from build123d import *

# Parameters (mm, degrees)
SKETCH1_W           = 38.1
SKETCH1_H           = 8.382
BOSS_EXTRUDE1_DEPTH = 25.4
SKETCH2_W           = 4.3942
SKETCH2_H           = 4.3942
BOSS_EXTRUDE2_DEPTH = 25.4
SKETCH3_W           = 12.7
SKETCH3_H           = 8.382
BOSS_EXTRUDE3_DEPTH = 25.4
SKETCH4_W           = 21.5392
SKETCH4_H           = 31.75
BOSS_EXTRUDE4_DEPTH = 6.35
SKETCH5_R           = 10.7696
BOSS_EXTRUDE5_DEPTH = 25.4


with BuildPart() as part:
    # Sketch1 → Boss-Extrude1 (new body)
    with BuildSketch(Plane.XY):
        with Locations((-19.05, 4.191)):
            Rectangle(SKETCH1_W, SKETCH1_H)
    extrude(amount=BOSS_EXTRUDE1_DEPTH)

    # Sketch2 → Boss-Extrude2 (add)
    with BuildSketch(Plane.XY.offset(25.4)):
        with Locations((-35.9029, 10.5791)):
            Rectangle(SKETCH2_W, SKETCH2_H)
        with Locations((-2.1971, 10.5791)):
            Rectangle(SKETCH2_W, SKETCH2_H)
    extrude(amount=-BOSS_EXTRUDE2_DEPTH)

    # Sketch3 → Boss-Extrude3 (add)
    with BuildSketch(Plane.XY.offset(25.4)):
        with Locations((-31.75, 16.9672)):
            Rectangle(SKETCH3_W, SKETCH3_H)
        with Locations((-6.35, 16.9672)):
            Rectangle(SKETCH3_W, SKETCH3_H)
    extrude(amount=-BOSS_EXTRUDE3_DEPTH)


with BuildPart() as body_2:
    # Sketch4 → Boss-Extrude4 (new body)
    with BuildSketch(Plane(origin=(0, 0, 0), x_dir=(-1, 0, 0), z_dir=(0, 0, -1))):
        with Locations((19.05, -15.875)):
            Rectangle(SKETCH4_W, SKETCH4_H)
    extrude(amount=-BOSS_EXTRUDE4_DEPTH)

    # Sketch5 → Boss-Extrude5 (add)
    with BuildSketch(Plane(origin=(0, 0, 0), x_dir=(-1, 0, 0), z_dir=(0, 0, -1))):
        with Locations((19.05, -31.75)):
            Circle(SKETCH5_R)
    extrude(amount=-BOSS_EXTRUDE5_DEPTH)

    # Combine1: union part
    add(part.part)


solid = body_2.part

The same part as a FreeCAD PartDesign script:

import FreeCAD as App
import Part
import Sketcher
Q = App.Units.Quantity

doc = App.newDocument("Part")
body = doc.addObject("PartDesign::Body", "Body")

# Sketch on XY plane
sketch1 = doc.addObject("Sketcher::SketchObject", "Sketch")
body.addObject(sketch1)
sketch1.AttachmentSupport = (doc.XY_Plane, [""])
sketch1.MapMode = "FlatFace"
sketch1.addGeometry([
    Part.LineSegment(App.Vector(-38, 8, 0), App.Vector(-38, 0, 0)),
    Part.LineSegment(App.Vector(-38, 0, 0), App.Vector(0, 0, 0)),
    Part.LineSegment(App.Vector(0, 0, 0), App.Vector(0, 8, 0)),
    Part.LineSegment(App.Vector(0, 8, 0), App.Vector(-38, 8, 0)),
], False)
sketch1.addConstraint([
    Sketcher.Constraint("Coincident", 0, 2, 1, 1),
    Sketcher.Constraint("Coincident", 1, 2, 2, 1),
    Sketcher.Constraint("Coincident", 2, 2, 3, 1),
    Sketcher.Constraint("Coincident", 3, 2, 0, 1),
    Sketcher.Constraint("Vertical", 0),
    Sketcher.Constraint("Horizontal", 1),
    Sketcher.Constraint("Vertical", 2),
    Sketcher.Constraint("Horizontal", 3),
    Sketcher.Constraint("Coincident", 1, 2, -1, 1),
    Sketcher.Constraint("DistanceX", 1, 1, 1, 2, Q("1.5 in")),
    Sketcher.Constraint("DistanceY", 0, 2, 0, 1, Q("0.33 in")),
])
pad1 = doc.addObject("PartDesign::Pad", "Pad")
body.addObject(pad1)
pad1.Profile = sketch1
pad1.Length = Q("1 in")

# Sketch on XY plane
sketch2 = doc.addObject("Sketcher::SketchObject", "Sketch001")
body.addObject(sketch2)
sketch2.AttachmentSupport = (doc.XY_Plane, [""])
sketch2.MapMode = "FlatFace"
sketch2.AttachmentOffset = App.Placement(App.Vector(0, 0, 1 * 25.4), App.Rotation())
sketch2.addGeometry([
    Part.LineSegment(App.Vector(-38.1, 12.8, 0), App.Vector(-38.1, 8.4, 0)),  # 0
    Part.LineSegment(App.Vector(-38.1, 8.4, 0), App.Vector(-33.7, 8.4, 0)),  # 1
    Part.LineSegment(App.Vector(-33.7, 8.4, 0), App.Vector(-33.7, 12.8, 0)),  # 2
    Part.LineSegment(App.Vector(-33.7, 12.8, 0), App.Vector(-38.1, 12.8, 0)),  # 3
    Part.LineSegment(App.Vector(-4.4, 12.8, 0), App.Vector(-4.4, 8.4, 0)),  # 4
    Part.LineSegment(App.Vector(-4.4, 8.4, 0), App.Vector(0, 8.4, 0)),  # 5
    Part.LineSegment(App.Vector(0, 8.4, 0), App.Vector(0, 12.8, 0)),  # 6
    Part.LineSegment(App.Vector(0, 12.8, 0), App.Vector(-4.4, 12.8, 0)),  # 7
], False)
sketch2.addConstraint([
    Sketcher.Constraint("Coincident", 0, 2, 1, 1),
    Sketcher.Constraint("Coincident", 1, 2, 2, 1),
    Sketcher.Constraint("Coincident", 2, 2, 3, 1),
    Sketcher.Constraint("Coincident", 3, 2, 0, 1),
    Sketcher.Constraint("Coincident", 4, 2, 5, 1),
    Sketcher.Constraint("Coincident", 5, 2, 6, 1),
    Sketcher.Constraint("Coincident", 6, 2, 7, 1),
    Sketcher.Constraint("Coincident", 7, 2, 4, 1),
    Sketcher.Constraint("Vertical", 0),
    Sketcher.Constraint("Horizontal", 1),
    Sketcher.Constraint("Vertical", 2),
    Sketcher.Constraint("Horizontal", 3),
    Sketcher.Constraint("Vertical", 4),
    Sketcher.Constraint("Horizontal", 5),
    Sketcher.Constraint("Vertical", 6),
    Sketcher.Constraint("Horizontal", 7),
    Sketcher.Constraint("PointOnObject", 5, 2, -2),
    Sketcher.Constraint("Horizontal", 1, 2, 4, 2),
    Sketcher.Constraint("Horizontal", 3, 2, 6, 2),
    Sketcher.Constraint("Equal", 3, 5),
    Sketcher.Constraint("Equal", 7, 0),
    Sketcher.Constraint("DistanceX", 0, 2, -1, 1, Q("1.5 in")),
    Sketcher.Constraint("DistanceX", 1, 1, 1, 2, Q("0.173 in")),
    Sketcher.Constraint("DistanceY", -1, 1, 0, 2, Q("0.33 in")),
])
pad2 = doc.addObject("PartDesign::Pad", "Pad001")
body.addObject(pad2)
pad2.Profile = sketch2
pad2.Length = Q("1 in")
pad2.Reversed = True

# Sketch on XY plane
sketch3 = doc.addObject("Sketcher::SketchObject", "Sketch002")
body.addObject(sketch3)
sketch3.AttachmentSupport = (doc.XY_Plane, [""])
sketch3.MapMode = "FlatFace"
sketch3.AttachmentOffset = App.Placement(App.Vector(0, 0, 1 * 25.4), App.Rotation())
sketch3.addGeometry([
    Part.LineSegment(App.Vector(-38, 21, 0), App.Vector(-38, 13, 0)),  # 0
    Part.LineSegment(App.Vector(-38, 13, 0), App.Vector(-25, 13, 0)),  # 1
    Part.LineSegment(App.Vector(-25, 13, 0), App.Vector(-25, 21, 0)),  # 2
    Part.LineSegment(App.Vector(-25, 21, 0), App.Vector(-38, 21, 0)),  # 3
    Part.LineSegment(App.Vector(-13, 21, 0), App.Vector(-13, 13, 0)),  # 4
    Part.LineSegment(App.Vector(-13, 13, 0), App.Vector(0, 13, 0)),  # 5
    Part.LineSegment(App.Vector(0, 13, 0), App.Vector(0, 21, 0)),  # 6
    Part.LineSegment(App.Vector(0, 21, 0), App.Vector(-13, 21, 0)),  # 7
], False)
sketch3.addConstraint([
    Sketcher.Constraint("Coincident", 0, 2, 1, 1),
    Sketcher.Constraint("Coincident", 1, 2, 2, 1),
    Sketcher.Constraint("Coincident", 2, 2, 3, 1),
    Sketcher.Constraint("Coincident", 3, 2, 0, 1),
    Sketcher.Constraint("Coincident", 4, 2, 5, 1),
    Sketcher.Constraint("Coincident", 5, 2, 6, 1),
    Sketcher.Constraint("Coincident", 6, 2, 7, 1),
    Sketcher.Constraint("Coincident", 7, 2, 4, 1),
    Sketcher.Constraint("Vertical", 0),
    Sketcher.Constraint("Horizontal", 1),
    Sketcher.Constraint("Vertical", 2),
    Sketcher.Constraint("Horizontal", 3),
    Sketcher.Constraint("Vertical", 4),
    Sketcher.Constraint("Horizontal", 5),
    Sketcher.Constraint("Vertical", 6),
    Sketcher.Constraint("Horizontal", 7),
    Sketcher.Constraint("PointOnObject", 5, 2, -2),
    Sketcher.Constraint("Horizontal", 1, 2, 4, 2),
    Sketcher.Constraint("Horizontal", 3, 2, 6, 2),
    Sketcher.Constraint("Equal", 3, 5),
    Sketcher.Constraint("DistanceX", 1, 1, 1, 2, Q("0.5 in")),
    Sketcher.Constraint("DistanceX", 1, 2, -1, 1, Q("1 in")),
    Sketcher.Constraint("DistanceY", 0, 2, 0, 1, Q("0.33 in")),
    Sketcher.Constraint("DistanceY", -1, 1, 0, 2, Q("0.503 in")),
])
pad3 = doc.addObject("PartDesign::Pad", "Pad002")
body.addObject(pad3)
pad3.Profile = sketch3
pad3.Length = Q("1 in")
pad3.Reversed = True
body2 = doc.addObject("PartDesign::Body", "Body001")

# Sketch on XY plane
sketch4 = doc.addObject("Sketcher::SketchObject", "Sketch003")
body2.addObject(sketch4)
sketch4.AttachmentSupport = (doc.getObject("XY_Plane001"), [""])
sketch4.MapMode = "FlatFace"
sketch4.addGeometry([
    Part.LineSegment(App.Vector(-8, 0, 0), App.Vector(-8, -32, 0)),
    Part.LineSegment(App.Vector(-8, -32, 0), App.Vector(-30, -32, 0)),
    Part.LineSegment(App.Vector(-30, -32, 0), App.Vector(-30, 0, 0)),
    Part.LineSegment(App.Vector(-30, 0, 0), App.Vector(-8, 0, 0)),
], False)
sketch4.addConstraint([
    Sketcher.Constraint("Coincident", 0, 2, 1, 1),
    Sketcher.Constraint("Coincident", 1, 2, 2, 1),
    Sketcher.Constraint("Coincident", 2, 2, 3, 1),
    Sketcher.Constraint("Coincident", 3, 2, 0, 1),
    Sketcher.Constraint("Vertical", 0),
    Sketcher.Constraint("Horizontal", 1),
    Sketcher.Constraint("Vertical", 2),
    Sketcher.Constraint("Horizontal", 3),
    Sketcher.Constraint("PointOnObject", 2, 2, -1),
    Sketcher.Constraint("DistanceY", 0, 2, 0, 1, Q("1.25 in")),
    Sketcher.Constraint("DistanceX", 1, 2, 1, 1, Q("0.848 in")),
    Sketcher.Constraint("DistanceX", 0, 2, -1, 1, Q("0.326 in")),
])
pad4 = doc.addObject("PartDesign::Pad", "Pad003")
body2.addObject(pad4)
pad4.Profile = sketch4
pad4.Length = Q("0.25 in")

# Sketch on XY plane
sketch5 = doc.addObject("Sketcher::SketchObject", "Sketch004")
body2.addObject(sketch5)
sketch5.AttachmentSupport = (doc.getObject("XY_Plane001"), [""])
sketch5.MapMode = "FlatFace"
sketch5.addGeometry(Part.Circle(App.Vector(-19, -32, 0), App.Vector(0, 0, 1), 11), False)
sketch5.addConstraint([
    Sketcher.Constraint("Diameter", 0, Q("0.848 in")),
    Sketcher.Constraint("DistanceX", 0, 3, -1, 1, Q("0.75 in")),
    Sketcher.Constraint("DistanceY", 0, 3, -1, 1, Q("1.25 in")),
])
pad5 = doc.addObject("PartDesign::Pad", "Pad004")
body2.addObject(pad5)
pad5.Profile = sketch5
pad5.Length = Q("1 in")
doc.recompute()

boolean = doc.addObject("PartDesign::Boolean", "Boolean")
body2.addObject(boolean)
boolean.Type = "Fuse"
boolean.addObjects([body])

doc.recompute()
